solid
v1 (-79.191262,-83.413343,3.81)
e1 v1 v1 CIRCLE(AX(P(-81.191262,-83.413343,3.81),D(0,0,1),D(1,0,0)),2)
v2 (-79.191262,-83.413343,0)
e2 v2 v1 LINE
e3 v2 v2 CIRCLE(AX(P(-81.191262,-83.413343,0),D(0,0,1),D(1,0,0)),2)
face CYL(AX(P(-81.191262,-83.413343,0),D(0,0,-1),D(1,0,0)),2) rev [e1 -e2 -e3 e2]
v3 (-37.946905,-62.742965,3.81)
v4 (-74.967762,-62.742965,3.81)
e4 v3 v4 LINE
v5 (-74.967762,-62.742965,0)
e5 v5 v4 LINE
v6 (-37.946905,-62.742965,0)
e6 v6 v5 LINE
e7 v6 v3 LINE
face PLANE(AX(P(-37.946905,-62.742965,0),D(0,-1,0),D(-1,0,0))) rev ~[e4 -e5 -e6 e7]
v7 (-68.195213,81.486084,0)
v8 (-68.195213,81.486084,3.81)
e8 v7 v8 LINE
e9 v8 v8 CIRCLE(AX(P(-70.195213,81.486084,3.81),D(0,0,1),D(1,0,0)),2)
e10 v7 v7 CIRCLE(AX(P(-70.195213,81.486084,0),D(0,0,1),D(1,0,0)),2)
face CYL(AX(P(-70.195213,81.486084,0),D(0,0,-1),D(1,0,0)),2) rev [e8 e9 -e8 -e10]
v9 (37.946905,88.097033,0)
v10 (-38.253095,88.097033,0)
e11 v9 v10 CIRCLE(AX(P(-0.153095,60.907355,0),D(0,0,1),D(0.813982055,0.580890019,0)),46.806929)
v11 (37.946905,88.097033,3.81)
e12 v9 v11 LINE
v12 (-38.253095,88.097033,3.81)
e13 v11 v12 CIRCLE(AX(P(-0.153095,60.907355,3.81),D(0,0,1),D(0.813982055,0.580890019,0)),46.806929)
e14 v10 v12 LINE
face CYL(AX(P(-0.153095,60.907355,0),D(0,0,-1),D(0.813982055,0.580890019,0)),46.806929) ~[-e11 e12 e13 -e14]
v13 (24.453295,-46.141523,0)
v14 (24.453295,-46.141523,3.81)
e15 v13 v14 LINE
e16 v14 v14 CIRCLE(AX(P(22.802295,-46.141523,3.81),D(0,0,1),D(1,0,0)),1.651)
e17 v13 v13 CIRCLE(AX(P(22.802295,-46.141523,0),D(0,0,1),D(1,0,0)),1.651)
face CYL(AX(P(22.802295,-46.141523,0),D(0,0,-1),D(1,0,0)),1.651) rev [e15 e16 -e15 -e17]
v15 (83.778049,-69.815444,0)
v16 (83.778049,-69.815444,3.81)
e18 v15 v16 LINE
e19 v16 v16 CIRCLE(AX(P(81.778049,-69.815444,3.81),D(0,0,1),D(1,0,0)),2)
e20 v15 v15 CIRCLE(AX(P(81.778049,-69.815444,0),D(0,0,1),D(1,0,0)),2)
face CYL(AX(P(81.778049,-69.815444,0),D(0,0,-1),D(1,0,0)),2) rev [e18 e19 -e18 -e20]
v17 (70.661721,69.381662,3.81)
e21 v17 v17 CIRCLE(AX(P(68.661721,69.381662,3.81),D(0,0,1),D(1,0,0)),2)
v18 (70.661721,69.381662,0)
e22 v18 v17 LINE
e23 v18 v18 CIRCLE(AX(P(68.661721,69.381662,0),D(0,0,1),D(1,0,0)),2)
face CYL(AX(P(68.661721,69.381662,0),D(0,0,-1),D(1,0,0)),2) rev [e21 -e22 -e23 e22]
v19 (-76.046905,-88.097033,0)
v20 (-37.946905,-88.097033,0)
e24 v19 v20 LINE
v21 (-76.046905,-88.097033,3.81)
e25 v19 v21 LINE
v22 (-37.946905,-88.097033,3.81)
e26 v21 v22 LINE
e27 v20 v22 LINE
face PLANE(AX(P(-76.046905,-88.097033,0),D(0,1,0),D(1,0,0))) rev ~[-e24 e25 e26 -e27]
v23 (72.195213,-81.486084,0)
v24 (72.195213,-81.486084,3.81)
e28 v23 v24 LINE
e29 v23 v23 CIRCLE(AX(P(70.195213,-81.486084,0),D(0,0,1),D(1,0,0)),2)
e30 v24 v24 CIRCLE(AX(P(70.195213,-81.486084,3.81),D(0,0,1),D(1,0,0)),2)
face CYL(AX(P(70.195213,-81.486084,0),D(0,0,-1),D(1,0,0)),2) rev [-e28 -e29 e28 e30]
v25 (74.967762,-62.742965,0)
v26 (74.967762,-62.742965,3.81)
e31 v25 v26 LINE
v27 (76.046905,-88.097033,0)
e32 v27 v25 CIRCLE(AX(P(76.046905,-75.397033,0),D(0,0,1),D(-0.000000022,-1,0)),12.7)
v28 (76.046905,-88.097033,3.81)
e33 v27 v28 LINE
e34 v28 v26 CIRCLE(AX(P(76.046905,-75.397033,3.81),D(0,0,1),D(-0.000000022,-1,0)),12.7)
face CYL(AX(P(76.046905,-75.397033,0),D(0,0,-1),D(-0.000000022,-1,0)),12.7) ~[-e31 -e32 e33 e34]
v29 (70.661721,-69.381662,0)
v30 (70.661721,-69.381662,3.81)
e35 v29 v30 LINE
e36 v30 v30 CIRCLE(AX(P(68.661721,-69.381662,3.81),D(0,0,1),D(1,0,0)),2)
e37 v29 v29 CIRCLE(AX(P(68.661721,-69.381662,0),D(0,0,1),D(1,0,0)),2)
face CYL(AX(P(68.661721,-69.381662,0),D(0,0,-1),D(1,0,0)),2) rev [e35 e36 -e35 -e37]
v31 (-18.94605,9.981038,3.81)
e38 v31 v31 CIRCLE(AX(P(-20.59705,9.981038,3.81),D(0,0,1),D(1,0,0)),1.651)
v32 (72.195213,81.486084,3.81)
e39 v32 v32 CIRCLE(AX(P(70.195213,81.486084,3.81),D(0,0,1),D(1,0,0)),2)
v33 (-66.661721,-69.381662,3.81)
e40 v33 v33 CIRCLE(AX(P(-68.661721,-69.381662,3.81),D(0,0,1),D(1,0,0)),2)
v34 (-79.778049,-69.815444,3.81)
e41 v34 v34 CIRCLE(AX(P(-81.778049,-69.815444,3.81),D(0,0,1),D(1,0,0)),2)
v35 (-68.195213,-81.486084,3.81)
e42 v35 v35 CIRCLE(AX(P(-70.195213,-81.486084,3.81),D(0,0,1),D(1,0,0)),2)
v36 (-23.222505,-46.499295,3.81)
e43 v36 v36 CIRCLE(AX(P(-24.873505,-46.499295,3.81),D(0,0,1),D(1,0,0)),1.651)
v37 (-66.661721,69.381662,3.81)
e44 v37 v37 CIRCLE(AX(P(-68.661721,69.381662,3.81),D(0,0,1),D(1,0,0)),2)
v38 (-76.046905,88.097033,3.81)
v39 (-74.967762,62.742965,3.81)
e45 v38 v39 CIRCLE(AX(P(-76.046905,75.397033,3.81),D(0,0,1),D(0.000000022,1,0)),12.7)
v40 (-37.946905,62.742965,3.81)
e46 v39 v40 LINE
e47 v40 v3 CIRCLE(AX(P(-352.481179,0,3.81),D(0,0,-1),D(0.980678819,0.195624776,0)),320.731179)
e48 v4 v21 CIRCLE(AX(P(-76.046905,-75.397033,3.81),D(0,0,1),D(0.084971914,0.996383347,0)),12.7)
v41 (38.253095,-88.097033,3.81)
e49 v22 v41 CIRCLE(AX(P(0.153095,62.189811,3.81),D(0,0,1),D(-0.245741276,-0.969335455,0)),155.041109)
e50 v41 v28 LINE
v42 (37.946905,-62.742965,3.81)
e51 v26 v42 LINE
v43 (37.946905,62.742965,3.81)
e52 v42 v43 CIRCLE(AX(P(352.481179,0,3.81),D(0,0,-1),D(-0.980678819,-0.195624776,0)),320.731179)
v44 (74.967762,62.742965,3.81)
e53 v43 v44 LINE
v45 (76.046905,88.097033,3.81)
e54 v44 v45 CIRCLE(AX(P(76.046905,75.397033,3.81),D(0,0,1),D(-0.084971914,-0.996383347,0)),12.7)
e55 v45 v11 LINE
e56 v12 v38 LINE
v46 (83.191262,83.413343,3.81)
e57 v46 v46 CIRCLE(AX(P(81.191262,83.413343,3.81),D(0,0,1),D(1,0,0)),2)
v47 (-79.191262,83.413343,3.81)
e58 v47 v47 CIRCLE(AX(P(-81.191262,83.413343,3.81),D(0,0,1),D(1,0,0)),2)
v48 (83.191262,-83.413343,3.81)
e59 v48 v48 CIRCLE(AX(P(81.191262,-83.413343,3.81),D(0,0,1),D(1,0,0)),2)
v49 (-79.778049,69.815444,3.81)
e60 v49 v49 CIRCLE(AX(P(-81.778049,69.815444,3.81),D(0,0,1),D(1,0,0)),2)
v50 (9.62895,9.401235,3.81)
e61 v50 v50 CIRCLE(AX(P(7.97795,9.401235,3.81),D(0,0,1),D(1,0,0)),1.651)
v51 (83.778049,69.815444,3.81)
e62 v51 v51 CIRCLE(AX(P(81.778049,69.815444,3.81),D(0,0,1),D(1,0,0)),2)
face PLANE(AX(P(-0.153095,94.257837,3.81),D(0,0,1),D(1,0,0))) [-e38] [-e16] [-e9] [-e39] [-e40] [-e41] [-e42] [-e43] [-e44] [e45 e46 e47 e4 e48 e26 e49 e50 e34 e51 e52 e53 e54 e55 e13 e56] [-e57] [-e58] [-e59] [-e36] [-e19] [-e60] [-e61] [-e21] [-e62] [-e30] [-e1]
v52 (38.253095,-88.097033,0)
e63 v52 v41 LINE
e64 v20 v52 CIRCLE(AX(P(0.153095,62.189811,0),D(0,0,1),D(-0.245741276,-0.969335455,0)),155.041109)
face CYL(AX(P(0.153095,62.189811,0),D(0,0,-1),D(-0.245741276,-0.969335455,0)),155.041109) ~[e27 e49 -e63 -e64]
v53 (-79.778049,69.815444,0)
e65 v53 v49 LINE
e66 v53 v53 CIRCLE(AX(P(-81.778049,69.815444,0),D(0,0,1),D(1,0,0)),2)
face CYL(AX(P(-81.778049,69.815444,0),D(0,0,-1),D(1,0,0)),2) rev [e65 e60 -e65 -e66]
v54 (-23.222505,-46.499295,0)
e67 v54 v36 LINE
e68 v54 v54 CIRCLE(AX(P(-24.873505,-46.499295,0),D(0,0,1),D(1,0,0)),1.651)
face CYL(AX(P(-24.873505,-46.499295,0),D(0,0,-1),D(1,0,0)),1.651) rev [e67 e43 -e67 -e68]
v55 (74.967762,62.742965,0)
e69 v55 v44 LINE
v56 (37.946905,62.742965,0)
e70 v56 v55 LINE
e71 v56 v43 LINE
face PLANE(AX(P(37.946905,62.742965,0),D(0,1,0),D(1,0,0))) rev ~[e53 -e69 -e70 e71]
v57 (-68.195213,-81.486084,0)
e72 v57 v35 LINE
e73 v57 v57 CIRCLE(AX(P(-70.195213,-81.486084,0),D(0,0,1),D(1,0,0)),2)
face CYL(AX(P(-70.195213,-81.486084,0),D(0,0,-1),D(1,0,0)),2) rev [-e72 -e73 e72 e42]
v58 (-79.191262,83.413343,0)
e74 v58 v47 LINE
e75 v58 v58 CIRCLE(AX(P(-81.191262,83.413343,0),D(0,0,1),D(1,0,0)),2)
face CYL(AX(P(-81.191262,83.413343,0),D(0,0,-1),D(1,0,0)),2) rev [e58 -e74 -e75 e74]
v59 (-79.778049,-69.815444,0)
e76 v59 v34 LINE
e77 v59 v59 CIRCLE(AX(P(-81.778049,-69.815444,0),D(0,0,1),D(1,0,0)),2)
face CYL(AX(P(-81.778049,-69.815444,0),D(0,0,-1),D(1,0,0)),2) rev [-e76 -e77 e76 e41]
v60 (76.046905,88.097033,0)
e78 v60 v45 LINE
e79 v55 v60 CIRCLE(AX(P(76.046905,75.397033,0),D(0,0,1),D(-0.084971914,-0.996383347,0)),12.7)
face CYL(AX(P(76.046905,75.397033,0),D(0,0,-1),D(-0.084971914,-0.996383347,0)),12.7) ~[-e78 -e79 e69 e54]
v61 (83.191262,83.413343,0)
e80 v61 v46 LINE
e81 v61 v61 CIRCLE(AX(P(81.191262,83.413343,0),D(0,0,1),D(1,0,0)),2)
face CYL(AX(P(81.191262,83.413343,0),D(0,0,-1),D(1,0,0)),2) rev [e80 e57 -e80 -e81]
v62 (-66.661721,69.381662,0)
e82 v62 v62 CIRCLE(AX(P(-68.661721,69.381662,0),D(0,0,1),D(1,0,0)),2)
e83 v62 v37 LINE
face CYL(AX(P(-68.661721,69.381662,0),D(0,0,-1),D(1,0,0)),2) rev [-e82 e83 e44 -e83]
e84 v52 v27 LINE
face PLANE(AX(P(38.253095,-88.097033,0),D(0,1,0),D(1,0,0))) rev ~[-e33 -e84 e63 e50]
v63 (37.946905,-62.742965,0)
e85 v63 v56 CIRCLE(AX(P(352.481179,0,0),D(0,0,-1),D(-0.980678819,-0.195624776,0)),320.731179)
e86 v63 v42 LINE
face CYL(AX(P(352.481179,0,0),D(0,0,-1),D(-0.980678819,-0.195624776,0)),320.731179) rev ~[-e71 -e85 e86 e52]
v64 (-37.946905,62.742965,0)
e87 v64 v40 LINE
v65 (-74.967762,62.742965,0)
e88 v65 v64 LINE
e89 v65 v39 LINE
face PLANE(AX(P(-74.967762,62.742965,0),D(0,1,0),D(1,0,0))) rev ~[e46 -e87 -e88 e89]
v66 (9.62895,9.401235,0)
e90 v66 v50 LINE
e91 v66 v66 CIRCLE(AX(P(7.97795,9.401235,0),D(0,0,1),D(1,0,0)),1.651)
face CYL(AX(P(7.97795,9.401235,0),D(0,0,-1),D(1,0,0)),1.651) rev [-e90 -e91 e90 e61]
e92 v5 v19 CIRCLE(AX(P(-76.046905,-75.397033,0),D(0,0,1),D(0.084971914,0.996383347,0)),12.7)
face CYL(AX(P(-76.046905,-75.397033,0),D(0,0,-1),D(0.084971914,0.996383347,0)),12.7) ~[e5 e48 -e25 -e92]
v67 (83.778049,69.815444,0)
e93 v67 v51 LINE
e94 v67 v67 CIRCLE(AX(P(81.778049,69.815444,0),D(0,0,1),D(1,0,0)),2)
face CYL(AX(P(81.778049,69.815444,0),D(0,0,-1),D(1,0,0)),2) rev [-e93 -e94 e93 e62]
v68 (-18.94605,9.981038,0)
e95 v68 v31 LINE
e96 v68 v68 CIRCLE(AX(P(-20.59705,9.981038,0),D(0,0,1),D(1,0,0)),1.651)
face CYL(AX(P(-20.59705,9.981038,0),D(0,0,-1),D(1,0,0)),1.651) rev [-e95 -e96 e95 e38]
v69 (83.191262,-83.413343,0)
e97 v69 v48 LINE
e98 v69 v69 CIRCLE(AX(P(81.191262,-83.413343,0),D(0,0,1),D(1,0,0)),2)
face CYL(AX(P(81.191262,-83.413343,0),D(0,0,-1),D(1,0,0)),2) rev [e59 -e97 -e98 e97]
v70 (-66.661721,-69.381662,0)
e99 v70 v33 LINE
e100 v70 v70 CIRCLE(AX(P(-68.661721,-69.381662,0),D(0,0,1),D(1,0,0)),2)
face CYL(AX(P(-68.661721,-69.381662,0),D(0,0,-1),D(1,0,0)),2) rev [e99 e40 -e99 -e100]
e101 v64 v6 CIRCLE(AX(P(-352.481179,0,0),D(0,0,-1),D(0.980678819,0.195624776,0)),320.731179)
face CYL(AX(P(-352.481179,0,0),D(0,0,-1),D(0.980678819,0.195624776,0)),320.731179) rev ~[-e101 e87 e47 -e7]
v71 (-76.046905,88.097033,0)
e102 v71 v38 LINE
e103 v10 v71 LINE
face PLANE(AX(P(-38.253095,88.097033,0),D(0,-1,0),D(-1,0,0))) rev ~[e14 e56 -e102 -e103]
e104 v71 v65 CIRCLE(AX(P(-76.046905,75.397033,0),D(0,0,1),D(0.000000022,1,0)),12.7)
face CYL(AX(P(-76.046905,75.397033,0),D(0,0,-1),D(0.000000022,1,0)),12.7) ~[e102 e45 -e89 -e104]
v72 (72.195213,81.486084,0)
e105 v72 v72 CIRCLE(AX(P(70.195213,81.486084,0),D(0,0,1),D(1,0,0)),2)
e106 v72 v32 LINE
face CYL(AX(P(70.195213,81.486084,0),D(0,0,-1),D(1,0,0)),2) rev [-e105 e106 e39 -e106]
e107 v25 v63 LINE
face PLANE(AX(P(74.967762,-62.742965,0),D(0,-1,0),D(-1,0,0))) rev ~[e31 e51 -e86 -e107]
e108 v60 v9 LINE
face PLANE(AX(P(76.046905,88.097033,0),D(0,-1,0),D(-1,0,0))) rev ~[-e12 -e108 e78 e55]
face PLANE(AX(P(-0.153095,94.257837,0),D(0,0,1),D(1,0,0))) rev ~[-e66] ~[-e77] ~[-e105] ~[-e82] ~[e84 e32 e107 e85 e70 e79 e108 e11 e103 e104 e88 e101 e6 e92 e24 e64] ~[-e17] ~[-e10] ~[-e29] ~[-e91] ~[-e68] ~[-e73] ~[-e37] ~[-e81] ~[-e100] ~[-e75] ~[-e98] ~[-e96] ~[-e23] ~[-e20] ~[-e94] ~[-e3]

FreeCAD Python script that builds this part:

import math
import FreeCAD as App
import Part
import Sketcher
Q = App.Units.Quantity

doc = App.newDocument("Part")
body = doc.addObject("PartDesign::Body", "Body")

# Sketch on XY plane
sketch1 = body.newObject("Sketcher::SketchObject", "Sketch")
sketch1.AttachmentSupport = (doc.getObject("XY_Plane"), [""])
sketch1.MapMode = "FlatFace"
sketch1.addGeometry(Part.ArcOfCircle(Part.Circle(App.Vector(-0.153095, 60.907355, 0), App.Vector(0, 0, 1), 46.806929), math.radians(35.513166), math.radians(144.486834)), False)
sketch1.addGeometry(Part.LineSegment(App.Vector(-38.253095, 88.097033, 0), App.Vector(-76.046905, 88.097033, 0)), False)
sketch1.addGeometry(Part.ArcOfCircle(Part.Circle(App.Vector(-76.046905, 75.397033, 0), App.Vector(0, 0, 1), 12.7), math.radians(89.999999), math.radians(274.87441)), False)
sketch1.addGeometry(Part.LineSegment(App.Vector(-74.967762, 62.742965, 0), App.Vector(-37.946905, 62.742965, 0)), False)
sketch1.addGeometry(Part.ArcOfCircle(Part.Circle(App.Vector(-352.481179, 0, 0), App.Vector(0, 0, 1), 320.731179), math.radians(-11.281224), math.radians(11.281224)), False)
sketch1.addGeometry(Part.LineSegment(App.Vector(-37.946905, -62.742965, 0), App.Vector(-74.967762, -62.742965, 0)), False)
sketch1.addGeometry(Part.ArcOfCircle(Part.Circle(App.Vector(-76.046905, -75.397033, 0), App.Vector(0, 0, 1), 12.7), math.radians(85.12559), math.radians(270.000001)), False)
sketch1.addGeometry(Part.LineSegment(App.Vector(-76.046905, -88.097033, 0), App.Vector(-37.946905, -88.097033, 0)), False)
sketch1.addGeometry(Part.ArcOfCircle(Part.Circle(App.Vector(0.153095, 62.189811, 0), App.Vector(0, 0, 1), 155.041109), math.radians(-104.225645), math.radians(-75.774355)), False)
sketch1.addGeometry(Part.LineSegment(App.Vector(38.253095, -88.097033, 0), App.Vector(76.046905, -88.097033, 0)), False)
sketch1.addGeometry(Part.ArcOfCircle(Part.Circle(App.Vector(76.046905, -75.397033, 0), App.Vector(0, 0, 1), 12.7), math.radians(-90.000001), math.radians(94.87441)), False)
sketch1.addGeometry(Part.LineSegment(App.Vector(74.967762, -62.742965, 0), App.Vector(37.946905, -62.742965, 0)), False)
sketch1.addGeometry(Part.ArcOfCircle(Part.Circle(App.Vector(352.481179, 0, 0), App.Vector(0, 0, 1), 320.731179), math.radians(168.718776), math.radians(191.281224)), False)
sketch1.addGeometry(Part.LineSegment(App.Vector(37.946905, 62.742965, 0), App.Vector(74.967762, 62.742965, 0)), False)
sketch1.addGeometry(Part.ArcOfCircle(Part.Circle(App.Vector(76.046905, 75.397033, 0), App.Vector(0, 0, 1), 12.7), math.radians(-94.87441), math.radians(90.000001)), False)
sketch1.addGeometry(Part.LineSegment(App.Vector(76.046905, 88.097033, 0), App.Vector(37.946905, 88.097033, 0)), False)
sketch1.addGeometry(Part.Circle(App.Vector(-81.191262, -83.413343, 0), App.Vector(0, 0, 1), 2), False)
sketch1.addGeometry(Part.Circle(App.Vector(-70.195213, -81.486084, 0), App.Vector(0, 0, 1), 2), False)
sketch1.addGeometry(Part.Circle(App.Vector(-81.778049, -69.815444, 0), App.Vector(0, 0, 1), 2), False)
sketch1.addGeometry(Part.Circle(App.Vector(-68.661721, -69.381662, 0), App.Vector(0, 0, 1), 2), False)
sketch1.addGeometry(Part.Circle(App.Vector(-24.873505, -46.499295, 0), App.Vector(0, 0, 1), 1.651), False)
sketch1.addGeometry(Part.Circle(App.Vector(22.802295, -46.141523, 0), App.Vector(0, 0, 1), 1.651), False)
sketch1.addGeometry(Part.Circle(App.Vector(70.195213, -81.486084, 0), App.Vector(0, 0, 1), 2), False)
sketch1.addGeometry(Part.Circle(App.Vector(81.191262, -83.413343, 0), App.Vector(0, 0, 1), 2), False)
sketch1.addGeometry(Part.Circle(App.Vector(68.661721, -69.381662, 0), App.Vector(0, 0, 1), 2), False)
sketch1.addGeometry(Part.Circle(App.Vector(81.778049, -69.815444, 0), App.Vector(0, 0, 1), 2), False)
sketch1.addGeometry(Part.Circle(App.Vector(-20.59705, 9.981038, 0), App.Vector(0, 0, 1), 1.651), False)
sketch1.addGeometry(Part.Circle(App.Vector(-81.778049, 69.815444, 0), App.Vector(0, 0, 1), 2), False)
sketch1.addGeometry(Part.Circle(App.Vector(-68.661721, 69.381662, 0), App.Vector(0, 0, 1), 2), False)
sketch1.addGeometry(Part.Circle(App.Vector(-81.191262, 83.413343, 0), App.Vector(0, 0, 1), 2), False)
sketch1.addGeometry(Part.Circle(App.Vector(-70.195213, 81.486084, 0), App.Vector(0, 0, 1), 2), False)
sketch1.addGeometry(Part.Circle(App.Vector(7.97795, 9.401235, 0), App.Vector(0, 0, 1), 1.651), False)
sketch1.addGeometry(Part.Circle(App.Vector(68.661721, 69.381662, 0), App.Vector(0, 0, 1), 2), False)
sketch1.addGeometry(Part.Circle(App.Vector(81.778049, 69.815444, 0), App.Vector(0, 0, 1), 2), False)
sketch1.addGeometry(Part.Circle(App.Vector(70.195213, 81.486084, 0), App.Vector(0, 0, 1), 2), False)
sketch1.addGeometry(Part.Circle(App.Vector(81.191262, 83.413343, 0), App.Vector(0, 0, 1), 2), False)
sketch1.addConstraint(Sketcher.Constraint("Coincident", 0, 2, 1, 1))
sketch1.addConstraint(Sketcher.Constraint("Tangent", 1, 2, 2, 1))
sketch1.addConstraint(Sketcher.Constraint("Coincident", 2, 2, 3, 1))
sketch1.addConstraint(Sketcher.Constraint("Coincident", 3, 2, 4, 2))
sketch1.addConstraint(Sketcher.Constraint("Coincident", 4, 1, 5, 1))
sketch1.addConstraint(Sketcher.Constraint("Coincident", 5, 2, 6, 1))
sketch1.addConstraint(Sketcher.Constraint("Tangent", 6, 2, 7, 1))
sketch1.addConstraint(Sketcher.Constraint("Coincident", 7, 2, 8, 1))
sketch1.addConstraint(Sketcher.Constraint("Coincident", 8, 2, 9, 1))
sketch1.addConstraint(Sketcher.Constraint("Tangent", 9, 2, 10, 1))
sketch1.addConstraint(Sketcher.Constraint("Coincident", 10, 2, 11, 1))
sketch1.addConstraint(Sketcher.Constraint("Coincident", 11, 2, 12, 2))
sketch1.addConstraint(Sketcher.Constraint("Coincident", 12, 1, 13, 1))
sketch1.addConstraint(Sketcher.Constraint("Coincident", 13, 2, 14, 1))
sketch1.addConstraint(Sketcher.Constraint("Tangent", 14, 2, 15, 1))
sketch1.addConstraint(Sketcher.Constraint("Coincident", 15, 2, 0, 1))
sketch1.addConstraint(Sketcher.Constraint("Horizontal", 1))
sketch1.addConstraint(Sketcher.Constraint("Horizontal", 3))
sketch1.addConstraint(Sketcher.Constraint("Horizontal", 5))
sketch1.addConstraint(Sketcher.Constraint("Horizontal", 7))
sketch1.addConstraint(Sketcher.Constraint("Horizontal", 9))
sketch1.addConstraint(Sketcher.Constraint("Horizontal", 11))
sketch1.addConstraint(Sketcher.Constraint("Horizontal", 13))
sketch1.addConstraint(Sketcher.Constraint("Horizontal", 15))
sketch1.addConstraint(Sketcher.Constraint("Equal", 2, 6))
sketch1.addConstraint(Sketcher.Constraint("Equal", 6, 10))
sketch1.addConstraint(Sketcher.Constraint("Equal", 4, 12))
sketch1.addConstraint(Sketcher.Constraint("Equal", 10, 14))
sketch1.addConstraint(Sketcher.Constraint("Equal", 16, 17))
sketch1.addConstraint(Sketcher.Constraint("Equal", 17, 18))
sketch1.addConstraint(Sketcher.Constraint("Equal", 18, 19))
sketch1.addConstraint(Sketcher.Constraint("Equal", 20, 21))
sketch1.addConstraint(Sketcher.Constraint("Equal", 19, 22))
sketch1.addConstraint(Sketcher.Constraint("Equal", 22, 23))
sketch1.addConstraint(Sketcher.Constraint("Equal", 23, 24))
sketch1.addConstraint(Sketcher.Constraint("Equal", 24, 25))
sketch1.addConstraint(Sketcher.Constraint("Equal", 21, 26))
sketch1.addConstraint(Sketcher.Constraint("Equal", 25, 27))
sketch1.addConstraint(Sketcher.Constraint("Equal", 27, 28))
sketch1.addConstraint(Sketcher.Constraint("Equal", 28, 29))
sketch1.addConstraint(Sketcher.Constraint("Equal", 29, 30))
sketch1.addConstraint(Sketcher.Constraint("Equal", 26, 31))
sketch1.addConstraint(Sketcher.Constraint("Equal", 30, 32))
sketch1.addConstraint(Sketcher.Constraint("Equal", 32, 33))
sketch1.addConstraint(Sketcher.Constraint("Equal", 33, 34))
sketch1.addConstraint(Sketcher.Constraint("Equal", 34, 35))
sketch1.addConstraint(Sketcher.Constraint("Symmetric", 2, 3, 10, 3, -1, 1))
sketch1.addConstraint(Sketcher.Constraint("Symmetric", 4, 3, 12, 3, -1, 1))
sketch1.addConstraint(Sketcher.Constraint("Symmetric", 6, 3, 14, 3, -1, 1))
sketch1.addConstraint(Sketcher.Constraint("Symmetric", 25, 3, 27, 3, -1, 1))
sketch1.addConstraint(Sketcher.Constraint("Symmetric", 24, 3, 28, 3, -1, 1))
sketch1.addConstraint(Sketcher.Constraint("Symmetric", 23, 3, 29, 3, -1, 1))
sketch1.addConstraint(Sketcher.Constraint("Symmetric", 22, 3, 30, 3, -1, 1))
sketch1.addConstraint(Sketcher.Constraint("Symmetric", 19, 3, 32, 3, -1, 1))
sketch1.addConstraint(Sketcher.Constraint("Symmetric", 18, 3, 33, 3, -1, 1))
sketch1.addConstraint(Sketcher.Constraint("Symmetric", 17, 3, 34, 3, -1, 1))
sketch1.addConstraint(Sketcher.Constraint("Symmetric", 16, 3, 35, 3, -1, 1))
sketch1.addConstraint(Sketcher.Constraint("Symmetric", 6, 3, 10, 3, -2))
sketch1.addConstraint(Sketcher.Constraint("Symmetric", 17, 3, 22, 3, -2))
sketch1.addConstraint(Sketcher.Constraint("Symmetric", 16, 3, 23, 3, -2))
sketch1.addConstraint(Sketcher.Constraint("Symmetric", 19, 3, 24, 3, -2))
sketch1.addConstraint(Sketcher.Constraint("Symmetric", 18, 3, 25, 3, -2))
sketch1.addConstraint(Sketcher.Constraint("PointOnObject", 4, 3, -1))
sketch1.addConstraint(Sketcher.Constraint("Horizontal", 5, 2, 10, 2))
sketch1.addConstraint(Sketcher.Constraint("Vertical", 2, 2, 5, 2))
sketch1.addConstraint(Sketcher.Constraint("Vertical", 4, 1, 7, 2))
sketch1.addConstraint(Sketcher.Constraint("Vertical", 10, 2, 13, 2))
sketch1.addConstraint(Sketcher.Constraint("Vertical", 12, 1, 15, 2))
sketch1.addConstraint(Sketcher.Constraint("Equal", 1, 9))
sketch1.addConstraint(Sketcher.Constraint("Radius", 2, Q("0.5 in")))
sketch1.addConstraint(Sketcher.Constraint("Diameter", 20, Q("0.13 in")))
sketch1.addConstraint(Sketcher.Constraint("DistanceX", 7, 1, 7, 2, Q("1.5 in")))
sketch1.addConstraint(Sketcher.Constraint("DistanceX", 2, 3, 8, 3, Q("3 in")))
sketch1.addConstraint(Sketcher.Constraint("Diameter", 16, Q("4 mm")))
sketch1.addConstraint(Sketcher.Constraint("Radius", 0, Q("46.806929 mm")))
sketch1.addConstraint(Sketcher.Constraint("Radius", 4, Q("320.731179 mm")))
sketch1.addConstraint(Sketcher.Constraint("Radius", 8, Q("155.041109 mm")))
sketch1.addConstraint(Sketcher.Constraint("DistanceX", 20, 3, 21, 3, Q("1.877 in")))
sketch1.addConstraint(Sketcher.Constraint("DistanceX", 26, 3, 31, 3, Q("1.125 in")))
sketch1.addConstraint(Sketcher.Constraint("DistanceY", 31, 3, 0, 3, Q("2.0278 in")))
sketch1.addConstraint(Sketcher.Constraint("DistanceY", 11, 2, 21, 3, Q("0.6536001 in")))
sketch1.addConstraint(Sketcher.Constraint("DistanceX", 1, 2, 1, 1, Q("37.79381 mm")))
sketch1.addConstraint(Sketcher.Constraint("DistanceY", 16, 3, 0, 3, Q("144.320698 mm")))
sketch1.addConstraint(Sketcher.Constraint("DistanceY", 16, 3, 18, 3, Q("13.597899 mm")))
sketch1.addConstraint(Sketcher.Constraint("DistanceX", 6, 3, 20, 3, Q("51.1734 mm")))
sketch1.addConstraint(Sketcher.Constraint("DistanceX", 27, 3, 26, 3, Q("61.180999 mm")))
sketch1.addConstraint(Sketcher.Constraint("DistanceX", 31, 3, 33, 3, Q("73.800099 mm")))
sketch1.addConstraint(Sketcher.Constraint("DistanceX", 29, 3, 2, 2, Q("6.2235 mm")))
sketch1.addConstraint(Sketcher.Constraint("DistanceX", 3, 1, 3, 2, Q("37.020857 mm")))
sketch1.addConstraint(Sketcher.Constraint("DistanceX", 4, 3, -1, 1, Q("352.481179 mm")))
sketch1.addConstraint(Sketcher.Constraint("DistanceX", 19, 3, -1, 1, Q("68.661721 mm")))
sketch1.addConstraint(Sketcher.Constraint("DistanceY", 17, 3, 6, 3, Q("6.089051 mm")))
sketch1.addConstraint(Sketcher.Constraint("DistanceX", 16, 3, 17, 3, Q("10.996049 mm")))
sketch1.addConstraint(Sketcher.Constraint("DistanceY", 6, 3, 19, 3, Q("6.015371 mm")))
sketch1.addConstraint(Sketcher.Constraint("DistanceY", 17, 3, 20, 3, Q("34.986789 mm")))
sketch1.addConstraint(Sketcher.Constraint("DistanceY", 21, 3, 26, 3, Q("56.122561 mm")))
pad1 = body.newObject("PartDesign::Pad", "Pad")
pad1.Profile = sketch1
pad1.Length = Q("0.15 in")

doc.recompute()
